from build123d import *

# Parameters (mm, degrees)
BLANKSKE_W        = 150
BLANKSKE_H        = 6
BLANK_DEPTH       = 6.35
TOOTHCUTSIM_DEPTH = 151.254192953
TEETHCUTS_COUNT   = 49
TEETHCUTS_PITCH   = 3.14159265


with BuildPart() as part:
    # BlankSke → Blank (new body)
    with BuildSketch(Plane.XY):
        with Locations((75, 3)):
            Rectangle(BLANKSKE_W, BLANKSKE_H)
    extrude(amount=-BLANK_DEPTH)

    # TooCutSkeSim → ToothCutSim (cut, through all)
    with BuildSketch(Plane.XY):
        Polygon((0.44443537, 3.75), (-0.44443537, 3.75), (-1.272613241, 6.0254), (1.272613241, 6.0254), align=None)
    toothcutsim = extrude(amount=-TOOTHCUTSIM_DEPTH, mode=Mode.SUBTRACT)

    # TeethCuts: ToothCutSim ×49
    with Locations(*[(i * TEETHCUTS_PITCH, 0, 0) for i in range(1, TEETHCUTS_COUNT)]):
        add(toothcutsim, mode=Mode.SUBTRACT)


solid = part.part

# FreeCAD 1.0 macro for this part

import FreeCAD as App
import Part
import Sketcher
Q = App.Units.Quantity


def add_polygon(sketch, points):
    """Adds a closed chain of lines whose ends are joined by coincident constraints."""
    first, n = sketch.GeometryCount, len(points)
    for a, b in zip(points, points[1:] + points[:1]):
        sketch.addGeometry(Part.LineSegment(App.Vector(*a, 0), App.Vector(*b, 0)), False)
    for i in range(n):
        sketch.addConstraint(Sketcher.Constraint("Coincident", first + i, 2, first + (i + 1) % n, 1))

doc = App.newDocument("Part")
body = doc.addObject("PartDesign::Body", "Body")

# Sketch on XY plane
sketch1 = body.newObject("Sketcher::SketchObject", "Sketch")
sketch1.AttachmentSupport = (doc.getObject("XY_Plane"), [""])
sketch1.MapMode = "FlatFace"
add_polygon(sketch1, [(0, 6), (0, 0), (150, 0), (150, 6)])  # lines 0-3
sketch1.addConstraint([
    Sketcher.Constraint("Vertical", 0),
    Sketcher.Constraint("Horizontal", 1),
    Sketcher.Constraint("Vertical", 2),
    Sketcher.Constraint("Horizontal", 3),
    Sketcher.Constraint("Coincident", 0, 2, -1, 1),
    Sketcher.Constraint("DistanceX", 1, 1, 1, 2, 150.0),
    Sketcher.Constraint("DistanceY", 0, 2, 0, 1, 6.0),
])
pad1 = body.newObject("PartDesign::Pad", "Pad")
pad1.Profile = sketch1
pad1.Length = 6.35
pad1.Reversed = True

# Sketch on XY plane
sketch2 = body.newObject("Sketcher::SketchObject", "Sketch001")
sketch2.AttachmentSupport = (doc.getObject("XY_Plane"), [""])
sketch2.MapMode = "FlatFace"
add_polygon(sketch2, [(-0.4, 3.8), (0.4, 3.8), (1.3, 6), (-1.3, 6)])  # lines 0-3
sketch2.addConstraint([
    Sketcher.Constraint("Horizontal", 0),
    Sketcher.Constraint("Horizontal", 2),
    Sketcher.Constraint("Equal", 1, 3),
    Sketcher.Constraint("Angle", 1, Q("70 deg")),
    Sketcher.Constraint("DistanceY", -1, 1, 0, 2, 3.75),
    Sketcher.Constraint("DistanceX", 0, 1, 0, 2, 0.888871),
    Sketcher.Constraint("DistanceY", -1, 1, 1, 2, 6.0254),
    Sketcher.Constraint("DistanceX", -1, 1, 0, 2, 0.444435),
])
pocket1 = body.newObject("PartDesign::Pocket", "Pocket")
pocket1.Profile = sketch2
pocket1.Type = "ThroughAll"
doc.recompute()

linearpattern = body.newObject("PartDesign::LinearPattern", "LinearPattern")
linearpattern.Originals = [pocket1]
linearpattern.Direction = (doc.getObject("X_Axis"), [""])
linearpattern.Mode = "offset"
linearpattern.Offset = 3.141593
linearpattern.Occurrences = 49
body.Tip = linearpattern

doc.recompute()
